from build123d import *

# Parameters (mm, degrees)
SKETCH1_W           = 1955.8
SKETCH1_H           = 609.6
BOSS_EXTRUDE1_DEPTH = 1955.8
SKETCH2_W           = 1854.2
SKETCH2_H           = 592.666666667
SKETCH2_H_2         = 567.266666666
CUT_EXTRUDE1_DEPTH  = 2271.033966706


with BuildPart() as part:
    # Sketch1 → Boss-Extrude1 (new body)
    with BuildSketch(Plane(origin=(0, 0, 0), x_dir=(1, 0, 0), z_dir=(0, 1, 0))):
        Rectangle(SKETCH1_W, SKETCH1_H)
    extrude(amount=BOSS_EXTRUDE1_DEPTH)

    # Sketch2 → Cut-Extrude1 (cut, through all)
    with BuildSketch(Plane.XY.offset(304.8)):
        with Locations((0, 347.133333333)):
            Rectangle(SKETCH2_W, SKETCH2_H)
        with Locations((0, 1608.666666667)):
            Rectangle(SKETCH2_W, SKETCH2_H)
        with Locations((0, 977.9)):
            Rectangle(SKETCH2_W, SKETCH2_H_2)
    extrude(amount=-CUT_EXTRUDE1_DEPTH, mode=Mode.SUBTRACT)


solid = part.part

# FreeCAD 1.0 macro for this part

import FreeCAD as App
import Part
import Sketcher

V = App.Vector
Q = App.Units.Quantity


def add_polygon(sketch, points):
    """Adds a closed chain of lines whose ends are joined by coincident constraints."""
    first, n = sketch.GeometryCount, len(points)
    for a, b in zip(points, points[1:] + points[:1]):
        sketch.addGeometry(Part.LineSegment(App.Vector(*a, 0), App.Vector(*b, 0)), False)
    for i in range(n):
        sketch.addConstraint(Sketcher.Constraint("Coincident", first + i, 2, first + (i + 1) % n, 1))

doc = App.newDocument("Part")
body = doc.addObject("PartDesign::Body", "Body")

# Sketch on XZ plane
sketch1 = body.newObject("Sketcher::SketchObject", "Sketch")
sketch1.AttachmentSupport = (doc.getObject("XZ_Plane"), [""])
sketch1.MapMode = "FlatFace"
add_polygon(sketch1, [(-978, -305), (-978, 305), (978, 305), (978, -305)])  # lines 0-3
sketch1.addConstraint([
    Sketcher.Constraint("Vertical", 0),
    Sketcher.Constraint("Horizontal", 1),
    Sketcher.Constraint("Vertical", 2),
    Sketcher.Constraint("Horizontal", 3),
    Sketcher.Constraint("Symmetric", 0, 2, 2, 2, -1, 1),
    Sketcher.Constraint("DistanceX", 1, 1, 1, 2, Q("77 in")),
    Sketcher.Constraint("DistanceY", 0, 1, 0, 2, Q("24 in")),
])
pad1 = body.newObject("PartDesign::Pad", "Pad")
pad1.Profile = sketch1
pad1.Length = Q("77 in")
pad1.Reversed = True

# Sketch on XY plane
sketch2 = body.newObject("Sketcher::SketchObject", "Sketch001")
sketch2.AttachmentSupport = (doc.getObject("XY_Plane"), [""])
sketch2.MapMode = "FlatFace"
sketch2.AttachmentOffset = App.Placement(V(0, 0, 12 * 25.4), App.Rotation())
add_polygon(sketch2, [(-927, 643), (-927, 51), (927, 51), (927, 643)])  # lines 0-3
add_polygon(sketch2, [(-927, 1905), (-927, 1312), (927, 1312), (927, 1905)])  # lines 4-7
add_polygon(sketch2, [(-927, 1262), (-927, 694), (927, 694), (927, 1262)])  # lines 8-11
sketch2.addConstraint([
    Sketcher.Constraint("Vertical", 0),
    Sketcher.Constraint("Horizontal", 1),
    Sketcher.Constraint("Vertical", 2),
    Sketcher.Constraint("Horizontal", 3),
    Sketcher.Constraint("Vertical", 4),
    Sketcher.Constraint("Horizontal", 5),
    Sketcher.Constraint("Vertical", 6),
    Sketcher.Constraint("Horizontal", 7),
    Sketcher.Constraint("Vertical", 8),
    Sketcher.Constraint("Horizontal", 9),
    Sketcher.Constraint("Vertical", 10),
    Sketcher.Constraint("Horizontal", 11),
    Sketcher.Constraint("Vertical", 3, 2, 4, 2),
    Sketcher.Constraint("Vertical", 2, 2, 5, 2),
    Sketcher.Constraint("Vertical", 7, 2, 8, 2),
    Sketcher.Constraint("Vertical", 6, 2, 9, 2),
    Sketcher.Constraint("Equal", 2, 4),
    Sketcher.Constraint("DistanceX", 1, 1, 1, 2, Q("73 in")),
    Sketcher.Constraint("DistanceY", -1, 1, 0, 2, Q("2 in")),
    Sketcher.Constraint("DistanceY", -1, 1, 6, 2, Q("75 in")),
    Sketcher.Constraint("DistanceY", 3, 2, 8, 2, Q("2 in")),
    Sketcher.Constraint("DistanceY", 10, 2, 5, 2, Q("2 in")),
    Sketcher.Constraint("DistanceX", 0, 2, -1, 1, Q("36.5 in")),
    Sketcher.Constraint("DistanceY", 0, 2, 0, 1, 592.666667),
])
pocket1 = body.newObject("PartDesign::Pocket", "Pocket")
pocket1.Profile = sketch2
pocket1.Type = "ThroughAll"

doc.recompute()
